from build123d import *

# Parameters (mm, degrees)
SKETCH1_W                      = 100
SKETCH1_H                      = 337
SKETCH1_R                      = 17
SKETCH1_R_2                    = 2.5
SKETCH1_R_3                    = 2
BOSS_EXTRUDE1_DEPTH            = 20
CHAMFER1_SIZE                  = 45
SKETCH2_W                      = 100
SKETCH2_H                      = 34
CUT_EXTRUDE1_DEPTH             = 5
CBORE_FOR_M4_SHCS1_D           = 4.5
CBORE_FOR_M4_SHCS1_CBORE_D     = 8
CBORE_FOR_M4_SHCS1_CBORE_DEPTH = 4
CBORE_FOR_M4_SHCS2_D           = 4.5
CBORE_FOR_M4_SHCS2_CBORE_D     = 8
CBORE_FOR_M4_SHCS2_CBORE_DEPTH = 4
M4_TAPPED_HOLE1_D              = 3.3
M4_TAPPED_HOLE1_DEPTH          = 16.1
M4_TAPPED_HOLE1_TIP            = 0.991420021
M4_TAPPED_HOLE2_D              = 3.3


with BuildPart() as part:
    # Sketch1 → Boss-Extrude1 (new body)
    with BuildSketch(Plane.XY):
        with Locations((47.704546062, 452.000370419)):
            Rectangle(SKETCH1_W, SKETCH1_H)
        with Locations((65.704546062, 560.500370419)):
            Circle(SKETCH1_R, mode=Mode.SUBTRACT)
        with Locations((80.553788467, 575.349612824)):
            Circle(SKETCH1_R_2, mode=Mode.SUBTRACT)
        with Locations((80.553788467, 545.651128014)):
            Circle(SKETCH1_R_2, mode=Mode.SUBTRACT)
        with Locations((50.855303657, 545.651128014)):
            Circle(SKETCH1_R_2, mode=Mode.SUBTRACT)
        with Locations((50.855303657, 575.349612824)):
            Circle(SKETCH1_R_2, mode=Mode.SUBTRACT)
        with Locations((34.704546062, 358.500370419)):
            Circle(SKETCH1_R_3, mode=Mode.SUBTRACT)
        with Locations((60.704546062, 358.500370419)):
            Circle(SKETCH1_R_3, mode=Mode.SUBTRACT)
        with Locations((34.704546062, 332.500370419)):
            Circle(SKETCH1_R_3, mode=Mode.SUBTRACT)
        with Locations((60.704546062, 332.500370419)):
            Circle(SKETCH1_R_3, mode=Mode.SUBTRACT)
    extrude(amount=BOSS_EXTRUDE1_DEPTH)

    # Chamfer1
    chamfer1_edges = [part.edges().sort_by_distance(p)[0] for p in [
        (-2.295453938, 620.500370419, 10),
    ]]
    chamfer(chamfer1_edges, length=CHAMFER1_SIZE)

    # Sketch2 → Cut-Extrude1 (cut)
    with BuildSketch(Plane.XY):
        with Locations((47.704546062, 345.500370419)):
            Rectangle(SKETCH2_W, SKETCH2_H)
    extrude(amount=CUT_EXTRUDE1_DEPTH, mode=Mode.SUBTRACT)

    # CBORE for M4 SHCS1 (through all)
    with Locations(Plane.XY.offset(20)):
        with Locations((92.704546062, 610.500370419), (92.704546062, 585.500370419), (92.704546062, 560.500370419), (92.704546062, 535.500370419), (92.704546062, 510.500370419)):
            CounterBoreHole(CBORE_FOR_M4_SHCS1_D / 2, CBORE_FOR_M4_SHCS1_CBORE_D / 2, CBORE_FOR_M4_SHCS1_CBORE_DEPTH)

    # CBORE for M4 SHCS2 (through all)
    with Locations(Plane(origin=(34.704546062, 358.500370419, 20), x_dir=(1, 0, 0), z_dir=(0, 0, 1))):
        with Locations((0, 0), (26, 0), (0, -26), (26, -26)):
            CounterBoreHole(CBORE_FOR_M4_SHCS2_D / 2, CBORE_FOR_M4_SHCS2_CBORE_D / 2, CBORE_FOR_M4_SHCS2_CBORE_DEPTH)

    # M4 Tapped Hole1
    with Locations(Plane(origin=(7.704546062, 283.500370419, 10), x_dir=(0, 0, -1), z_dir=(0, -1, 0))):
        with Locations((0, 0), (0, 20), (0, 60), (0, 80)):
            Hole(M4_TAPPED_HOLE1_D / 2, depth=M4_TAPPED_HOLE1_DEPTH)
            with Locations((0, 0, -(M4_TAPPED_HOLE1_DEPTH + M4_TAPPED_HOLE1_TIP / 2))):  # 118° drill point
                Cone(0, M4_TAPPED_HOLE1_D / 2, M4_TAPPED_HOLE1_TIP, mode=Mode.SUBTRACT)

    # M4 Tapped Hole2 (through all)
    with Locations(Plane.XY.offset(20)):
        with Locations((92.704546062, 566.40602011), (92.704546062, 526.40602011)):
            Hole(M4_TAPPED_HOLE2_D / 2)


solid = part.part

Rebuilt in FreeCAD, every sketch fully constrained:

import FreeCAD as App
import Part
import Sketcher

V = App.Vector


def edges_at(feature, points):
    """Names of the edges that pass closest to the given points."""
    edges = feature.Shape.Edges
    near = lambda p: min(range(len(edges)), key=lambda i: edges[i].distToShape(Part.Vertex(*p))[0])
    return sorted({f"Edge{near(p) + 1}" for p in points})


def add_polygon(sketch, points):
    """Adds a closed chain of lines whose ends are joined by coincident constraints."""
    first, n = sketch.GeometryCount, len(points)
    for a, b in zip(points, points[1:] + points[:1]):
        sketch.addGeometry(Part.LineSegment(App.Vector(*a, 0), App.Vector(*b, 0)), False)
    for i in range(n):
        sketch.addConstraint(Sketcher.Constraint("Coincident", first + i, 2, first + (i + 1) % n, 1))

doc = App.newDocument("Part")
body = doc.addObject("PartDesign::Body", "Body")

# Sketch on XY plane
sketch1 = body.newObject("Sketcher::SketchObject", "Sketch")
sketch1.AttachmentSupport = (doc.getObject("XY_Plane"), [""])
sketch1.MapMode = "FlatFace"
add_polygon(sketch1, [(-2.3, 620.5), (-2.3, 283.5), (97.7, 283.5), (97.7, 620.5)])  # lines 0-3
sketch1.addGeometry(Part.Circle(V(34.7, 332.5, 0), V(0, 0, 1), 2), False)  # 4
sketch1.addGeometry(Part.Circle(V(34.7, 358.5, 0), V(0, 0, 1), 2), False)  # 5
sketch1.addGeometry(Part.Circle(V(60.7, 332.5, 0), V(0, 0, 1), 2), False)  # 6
sketch1.addGeometry(Part.Circle(V(60.7, 358.5, 0), V(0, 0, 1), 2), False)  # 7
sketch1.addGeometry(Part.Circle(V(50.9, 545.7, 0), V(0, 0, 1), 2.5), False)  # 8
sketch1.addGeometry(Part.Circle(V(50.9, 575.3, 0), V(0, 0, 1), 2.5), False)  # 9
sketch1.addGeometry(Part.Circle(V(65.7, 560.5, 0), V(0, 0, 1), 17), False)  # 10
sketch1.addGeometry(Part.Circle(V(80.6, 545.7, 0), V(0, 0, 1), 2.5), False)  # 11
sketch1.addGeometry(Part.Circle(V(80.6, 575.3, 0), V(0, 0, 1), 2.5), False)  # 12
sketch1.addConstraint(Sketcher.Constraint("Vertical", 0))
sketch1.addConstraint(Sketcher.Constraint("Horizontal", 1))
sketch1.addConstraint(Sketcher.Constraint("Vertical", 2))
sketch1.addConstraint(Sketcher.Constraint("Horizontal", 3))
sketch1.addConstraint(Sketcher.Constraint("Equal", 4, 5))
sketch1.addConstraint(Sketcher.Constraint("Equal", 5, 6))
sketch1.addConstraint(Sketcher.Constraint("Equal", 6, 7))
sketch1.addConstraint(Sketcher.Constraint("Equal", 8, 9))
sketch1.addConstraint(Sketcher.Constraint("Equal", 9, 11))
sketch1.addConstraint(Sketcher.Constraint("Equal", 11, 12))
sketch1.addConstraint(Sketcher.Constraint("Horizontal", 4, 3, 6, 3))
sketch1.addConstraint(Sketcher.Constraint("Horizontal", 5, 3, 7, 3))
sketch1.addConstraint(Sketcher.Constraint("Horizontal", 8, 3, 11, 3))
sketch1.addConstraint(Sketcher.Constraint("Horizontal", 9, 3, 12, 3))
sketch1.addConstraint(Sketcher.Constraint("Vertical", 4, 3, 5, 3))
sketch1.addConstraint(Sketcher.Constraint("Vertical", 6, 3, 7, 3))
sketch1.addConstraint(Sketcher.Constraint("Vertical", 8, 3, 9, 3))
sketch1.addConstraint(Sketcher.Constraint("Vertical", 11, 3, 12, 3))
sketch1.addConstraint(Sketcher.Constraint("Diameter", 4, 4.0))
sketch1.addConstraint(Sketcher.Constraint("Diameter", 8, 5.0))
sketch1.addConstraint(Sketcher.Constraint("Diameter", 10, 34.0))
sketch1.addConstraint(Sketcher.Constraint("DistanceX", 1, 1, 1, 2, 100.0))
sketch1.addConstraint(Sketcher.Constraint("DistanceY", 0, 2, 0, 1, 337.0))
sketch1.addConstraint(Sketcher.Constraint("DistanceY", 4, 3, 5, 3, 26.0))
sketch1.addConstraint(Sketcher.Constraint("DistanceX", 4, 3, 6, 3, 26.0))
sketch1.addConstraint(Sketcher.Constraint("DistanceX", 7, 3, 10, 3, 5.0))
sketch1.addConstraint(Sketcher.Constraint("DistanceY", 7, 3, 10, 3, 202.0))
sketch1.addConstraint(Sketcher.Constraint("DistanceX", 0, 2, 4, 3, 37.0))
sketch1.addConstraint(Sketcher.Constraint("DistanceY", 0, 2, 4, 3, 49.0))
sketch1.addConstraint(Sketcher.Constraint("DistanceY", -1, 1, 4, 3, 332.50037))
sketch1.addConstraint(Sketcher.Constraint("DistanceY", -1, 1, 8, 3, 545.651128))
sketch1.addConstraint(Sketcher.Constraint("DistanceX", -1, 1, 11, 3, 80.553788))
sketch1.addConstraint(Sketcher.Constraint("DistanceX", -1, 1, 4, 3, 34.704546))
sketch1.addConstraint(Sketcher.Constraint("DistanceX", -1, 1, 8, 3, 50.855304))
sketch1.addConstraint(Sketcher.Constraint("DistanceY", -1, 1, 9, 3, 575.349613))
pad1 = body.newObject("PartDesign::Pad", "Pad")
pad1.Profile = sketch1
pad1.Length = 20
doc.recompute()

chamfer = body.newObject("PartDesign::Chamfer", "Chamfer")
chamfer.Base = (pad1, edges_at(pad1, [(-2.295, 620.5, 10)]))
chamfer.Size = 45

# Sketch on XY plane
sketch2 = body.newObject("Sketcher::SketchObject", "Sketch001")
sketch2.AttachmentSupport = (doc.getObject("XY_Plane"), [""])
sketch2.MapMode = "FlatFace"
add_polygon(sketch2, [(-2, 363), (-2, 329), (98, 329), (98, 363)])  # lines 0-3
sketch2.addConstraint(Sketcher.Constraint("Vertical", 0))
sketch2.addConstraint(Sketcher.Constraint("Horizontal", 1))
sketch2.addConstraint(Sketcher.Constraint("Vertical", 2))
sketch2.addConstraint(Sketcher.Constraint("Horizontal", 3))
sketch2.addConstraint(Sketcher.Constraint("DistanceX", 1, 1, 1, 2, 100.0))
sketch2.addConstraint(Sketcher.Constraint("DistanceY", 0, 2, 0, 1, 34.0))
sketch2.addConstraint(Sketcher.Constraint("DistanceY", -1, 1, 0, 2, 328.50037))
sketch2.addConstraint(Sketcher.Constraint("DistanceX", 0, 2, -1, 1, 2.295454))
pocket1 = body.newObject("PartDesign::Pocket", "Pocket")
pocket1.Profile = sketch2
pocket1.Length = 5
pocket1.Reversed = True

# Sketch on XY plane
sketch3 = body.newObject("Sketcher::SketchObject", "Sketch002")
sketch3.AttachmentSupport = (doc.getObject("XY_Plane"), [""])
sketch3.MapMode = "FlatFace"
sketch3.AttachmentOffset = App.Placement(V(0, 0, 20), App.Rotation())
sketch3.addGeometry(Part.Circle(V(92.7, 610.5, 0), V(0, 0, 1), 2.2), False)
sketch3.addGeometry(Part.Circle(V(92.7, 585.5, 0), V(0, 0, 1), 2.2), False)
sketch3.addGeometry(Part.Circle(V(92.7, 560.5, 0), V(0, 0, 1), 2.2), False)
sketch3.addGeometry(Part.Circle(V(92.7, 535.5, 0), V(0, 0, 1), 2.2), False)
sketch3.addGeometry(Part.Circle(V(92.7, 510.5, 0), V(0, 0, 1), 2.2), False)
sketch3.addConstraint(Sketcher.Constraint("Equal", 0, 1))
sketch3.addConstraint(Sketcher.Constraint("Equal", 1, 2))
sketch3.addConstraint(Sketcher.Constraint("Equal", 2, 3))
sketch3.addConstraint(Sketcher.Constraint("Equal", 3, 4))
sketch3.addConstraint(Sketcher.Constraint("Vertical", 0, 3, 1, 3))
sketch3.addConstraint(Sketcher.Constraint("Vertical", 1, 3, 2, 3))
sketch3.addConstraint(Sketcher.Constraint("Vertical", 2, 3, 3, 3))
sketch3.addConstraint(Sketcher.Constraint("Vertical", 3, 3, 4, 3))
sketch3.addConstraint(Sketcher.Constraint("Diameter", 0, 4.5))
sketch3.addConstraint(Sketcher.Constraint("DistanceY", 1, 3, 0, 3, 25.0))
sketch3.addConstraint(Sketcher.Constraint("DistanceY", 2, 3, 1, 3, 25.0))
sketch3.addConstraint(Sketcher.Constraint("DistanceY", 3, 3, 2, 3, 25.0))
sketch3.addConstraint(Sketcher.Constraint("DistanceY", 4, 3, 3, 3, 25.0))
sketch3.addConstraint(Sketcher.Constraint("DistanceY", -1, 1, 0, 3, 610.50037))
sketch3.addConstraint(Sketcher.Constraint("DistanceX", -1, 1, 0, 3, 92.704546))
doc.recompute()
hole = body.newObject("PartDesign::Hole", "Hole")
hole.Profile = sketch3
hole.ThreadType = "None"
hole.Diameter = 4.5
hole.DepthType = "ThroughAll"
hole.HoleCutType = "Counterbore"
hole.HoleCutDiameter = 8
hole.HoleCutDepth = 4

# Sketch on XY plane
sketch4 = body.newObject("Sketcher::SketchObject", "Sketch003")
sketch4.AttachmentSupport = (doc.getObject("XY_Plane"), [""])
sketch4.MapMode = "FlatFace"
sketch4.AttachmentOffset = App.Placement(V(0, 0, 20), App.Rotation())
sketch4.addGeometry(Part.Circle(V(34.7, 358.5, 0), V(0, 0, 1), 2.2), False)
sketch4.addGeometry(Part.Circle(V(60.7, 358.5, 0), V(0, 0, 1), 2.2), False)
sketch4.addGeometry(Part.Circle(V(34.7, 332.5, 0), V(0, 0, 1), 2.2), False)
sketch4.addGeometry(Part.Circle(V(60.7, 332.5, 0), V(0, 0, 1), 2.2), False)
sketch4.addConstraint(Sketcher.Constraint("Equal", 0, 1))
sketch4.addConstraint(Sketcher.Constraint("Equal", 1, 2))
sketch4.addConstraint(Sketcher.Constraint("Equal", 2, 3))
sketch4.addConstraint(Sketcher.Constraint("Horizontal", 0, 3, 1, 3))
sketch4.addConstraint(Sketcher.Constraint("Horizontal", 2, 3, 3, 3))
sketch4.addConstraint(Sketcher.Constraint("Vertical", 0, 3, 2, 3))
sketch4.addConstraint(Sketcher.Constraint("Vertical", 1, 3, 3, 3))
sketch4.addConstraint(Sketcher.Constraint("Diameter", 0, 4.5))
sketch4.addConstraint(Sketcher.Constraint("DistanceX", 0, 3, 1, 3, 26.0))
sketch4.addConstraint(Sketcher.Constraint("DistanceY", 2, 3, 0, 3, 26.0))
sketch4.addConstraint(Sketcher.Constraint("DistanceY", -1, 1, 0, 3, 358.50037))
sketch4.addConstraint(Sketcher.Constraint("DistanceX", -1, 1, 0, 3, 34.704546))
doc.recompute()
hole2 = body.newObject("PartDesign::Hole", "Hole001")
hole2.Profile = sketch4
hole2.ThreadType = "None"
hole2.Diameter = 4.5
hole2.DepthType = "ThroughAll"
hole2.HoleCutType = "Counterbore"
hole2.HoleCutDiameter = 8
hole2.HoleCutDepth = 4

# Sketch on XZ plane
sketch5 = body.newObject("Sketcher::SketchObject", "Sketch004")
sketch5.AttachmentSupport = (doc.getObject("XZ_Plane"), [""])
sketch5.MapMode = "FlatFace"
sketch5.AttachmentOffset = App.Placement(V(0, 0, -283.50037), App.Rotation())
sketch5.addGeometry(Part.Circle(V(7.7, 10, 0), V(0, 0, 1), 1.6), False)
sketch5.addGeometry(Part.Circle(V(27.7, 10, 0), V(0, 0, 1), 1.6), False)
sketch5.addGeometry(Part.Circle(V(67.7, 10, 0), V(0, 0, 1), 1.6), False)
sketch5.addGeometry(Part.Circle(V(87.7, 10, 0), V(0, 0, 1), 1.6), False)
sketch5.addConstraint(Sketcher.Constraint("Equal", 0, 1))
sketch5.addConstraint(Sketcher.Constraint("Equal", 1, 2))
sketch5.addConstraint(Sketcher.Constraint("Equal", 2, 3))
sketch5.addConstraint(Sketcher.Constraint("Horizontal", 0, 3, 1, 3))
sketch5.addConstraint(Sketcher.Constraint("Horizontal", 1, 3, 2, 3))
sketch5.addConstraint(Sketcher.Constraint("Horizontal", 2, 3, 3, 3))
sketch5.addConstraint(Sketcher.Constraint("Diameter", 0, 3.3))
sketch5.addConstraint(Sketcher.Constraint("DistanceY", -1, 1, 0, 3, 10.0))
sketch5.addConstraint(Sketcher.Constraint("DistanceX", 0, 3, 1, 3, 20.0))
sketch5.addConstraint(Sketcher.Constraint("DistanceX", 1, 3, 2, 3, 40.0))
sketch5.addConstraint(Sketcher.Constraint("DistanceX", 2, 3, 3, 3, 20.0))
sketch5.addConstraint(Sketcher.Constraint("DistanceX", -1, 1, 0, 3, 7.704546))
doc.recompute()
hole3 = body.newObject("PartDesign::Hole", "Hole002")
hole3.Profile = sketch5
hole3.ThreadType = "None"
hole3.Diameter = 3.3
hole3.DepthType = "Dimension"
hole3.Depth = 16.1
hole3.DrillPoint = "Angled"
hole3.DrillPointAngle = 118

# Sketch on XY plane
sketch6 = body.newObject("Sketcher::SketchObject", "Sketch005")
sketch6.AttachmentSupport = (doc.getObject("XY_Plane"), [""])
sketch6.MapMode = "FlatFace"
sketch6.AttachmentOffset = App.Placement(V(0, 0, 20), App.Rotation())
sketch6.addGeometry(Part.Circle(V(92.7, 566.4, 0), V(0, 0, 1), 1.6), False)
sketch6.addGeometry(Part.Circle(V(92.7, 526.4, 0), V(0, 0, 1), 1.6), False)
sketch6.addConstraint(Sketcher.Constraint("Equal", 0, 1))
sketch6.addConstraint(Sketcher.Constraint("Vertical", 0, 3, 1, 3))
sketch6.addConstraint(Sketcher.Constraint("Diameter", 0, 3.3))
sketch6.addConstraint(Sketcher.Constraint("DistanceY", 1, 3, 0, 3, 40.0))
sketch6.addConstraint(Sketcher.Constraint("DistanceY", -1, 1, 0, 3, 566.40602))
sketch6.addConstraint(Sketcher.Constraint("DistanceX", -1, 1, 0, 3, 92.704546))
doc.recompute()
hole4 = body.newObject("PartDesign::Hole", "Hole003")
hole4.Profile = sketch6
hole4.ThreadType = "None"
hole4.Diameter = 3.3
hole4.DepthType = "ThroughAll"

doc.recompute()
